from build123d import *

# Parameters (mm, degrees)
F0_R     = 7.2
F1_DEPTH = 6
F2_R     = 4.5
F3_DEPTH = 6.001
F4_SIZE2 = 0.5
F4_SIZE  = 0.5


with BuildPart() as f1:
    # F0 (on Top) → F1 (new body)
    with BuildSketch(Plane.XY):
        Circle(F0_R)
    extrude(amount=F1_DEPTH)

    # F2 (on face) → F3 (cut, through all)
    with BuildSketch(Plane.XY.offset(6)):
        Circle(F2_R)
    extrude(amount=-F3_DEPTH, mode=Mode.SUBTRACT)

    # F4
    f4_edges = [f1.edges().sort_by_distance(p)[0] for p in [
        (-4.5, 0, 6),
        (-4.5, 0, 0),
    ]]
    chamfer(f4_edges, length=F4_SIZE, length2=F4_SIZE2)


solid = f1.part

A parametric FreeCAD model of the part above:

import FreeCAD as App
import Part
import Sketcher
Q = App.Units.Quantity


def edges_at(feature, points):
    """Names of the edges that pass closest to the given points."""
    edges = feature.Shape.Edges
    near = lambda p: min(range(len(edges)), key=lambda i: edges[i].distToShape(Part.Vertex(*p))[0])
    return sorted({f"Edge{near(p) + 1}" for p in points})

doc = App.newDocument("Part")
body = doc.addObject("PartDesign::Body", "Body")

sketch1 = body.newObject("Sketcher::SketchObject", "Sketch")
sketch1.AttachmentSupport = (doc.getObject("XY_Plane"), [""])
sketch1.MapMode = "FlatFace"
sketch1.addGeometry(Part.Circle(App.Vector(0, 0, 0), App.Vector(0, 0, 1), 7), False)
sketch1.addConstraint(Sketcher.Constraint("Coincident", 0, 3, -1, 1))
sketch1.addConstraint(Sketcher.Constraint("Diameter", 0, Q("14.4 mm")))
pad1 = body.newObject("PartDesign::Pad", "Pad")
pad1.Profile = sketch1
pad1.Length = 6

sketch2 = body.newObject("Sketcher::SketchObject", "Sketch001")
sketch2.AttachmentSupport = (doc.getObject("XY_Plane"), [""])
sketch2.MapMode = "FlatFace"
sketch2.AttachmentOffset = App.Placement(App.Vector(0, 0, 6), App.Rotation())
sketch2.addGeometry(Part.Circle(App.Vector(0, 0, 0), App.Vector(0, 0, 1), 4.5), False)
sketch2.addConstraint(Sketcher.Constraint("Coincident", 0, 3, -1, 1))
sketch2.addConstraint(Sketcher.Constraint("Diameter", 0, Q("9 mm")))
pocket1 = body.newObject("PartDesign::Pocket", "Pocket")
pocket1.Profile = sketch2
pocket1.Type = "ThroughAll"
doc.recompute()

chamfer = body.newObject("PartDesign::Chamfer", "Chamfer")
chamfer.Base = (pocket1, edges_at(pocket1, [(-4.5, 0, 6), (-4.5, 0, 0)]))
chamfer.ChamferType = "Two distances"
chamfer.Size = 0.5
chamfer.Size2 = 0.5

doc.recompute()
